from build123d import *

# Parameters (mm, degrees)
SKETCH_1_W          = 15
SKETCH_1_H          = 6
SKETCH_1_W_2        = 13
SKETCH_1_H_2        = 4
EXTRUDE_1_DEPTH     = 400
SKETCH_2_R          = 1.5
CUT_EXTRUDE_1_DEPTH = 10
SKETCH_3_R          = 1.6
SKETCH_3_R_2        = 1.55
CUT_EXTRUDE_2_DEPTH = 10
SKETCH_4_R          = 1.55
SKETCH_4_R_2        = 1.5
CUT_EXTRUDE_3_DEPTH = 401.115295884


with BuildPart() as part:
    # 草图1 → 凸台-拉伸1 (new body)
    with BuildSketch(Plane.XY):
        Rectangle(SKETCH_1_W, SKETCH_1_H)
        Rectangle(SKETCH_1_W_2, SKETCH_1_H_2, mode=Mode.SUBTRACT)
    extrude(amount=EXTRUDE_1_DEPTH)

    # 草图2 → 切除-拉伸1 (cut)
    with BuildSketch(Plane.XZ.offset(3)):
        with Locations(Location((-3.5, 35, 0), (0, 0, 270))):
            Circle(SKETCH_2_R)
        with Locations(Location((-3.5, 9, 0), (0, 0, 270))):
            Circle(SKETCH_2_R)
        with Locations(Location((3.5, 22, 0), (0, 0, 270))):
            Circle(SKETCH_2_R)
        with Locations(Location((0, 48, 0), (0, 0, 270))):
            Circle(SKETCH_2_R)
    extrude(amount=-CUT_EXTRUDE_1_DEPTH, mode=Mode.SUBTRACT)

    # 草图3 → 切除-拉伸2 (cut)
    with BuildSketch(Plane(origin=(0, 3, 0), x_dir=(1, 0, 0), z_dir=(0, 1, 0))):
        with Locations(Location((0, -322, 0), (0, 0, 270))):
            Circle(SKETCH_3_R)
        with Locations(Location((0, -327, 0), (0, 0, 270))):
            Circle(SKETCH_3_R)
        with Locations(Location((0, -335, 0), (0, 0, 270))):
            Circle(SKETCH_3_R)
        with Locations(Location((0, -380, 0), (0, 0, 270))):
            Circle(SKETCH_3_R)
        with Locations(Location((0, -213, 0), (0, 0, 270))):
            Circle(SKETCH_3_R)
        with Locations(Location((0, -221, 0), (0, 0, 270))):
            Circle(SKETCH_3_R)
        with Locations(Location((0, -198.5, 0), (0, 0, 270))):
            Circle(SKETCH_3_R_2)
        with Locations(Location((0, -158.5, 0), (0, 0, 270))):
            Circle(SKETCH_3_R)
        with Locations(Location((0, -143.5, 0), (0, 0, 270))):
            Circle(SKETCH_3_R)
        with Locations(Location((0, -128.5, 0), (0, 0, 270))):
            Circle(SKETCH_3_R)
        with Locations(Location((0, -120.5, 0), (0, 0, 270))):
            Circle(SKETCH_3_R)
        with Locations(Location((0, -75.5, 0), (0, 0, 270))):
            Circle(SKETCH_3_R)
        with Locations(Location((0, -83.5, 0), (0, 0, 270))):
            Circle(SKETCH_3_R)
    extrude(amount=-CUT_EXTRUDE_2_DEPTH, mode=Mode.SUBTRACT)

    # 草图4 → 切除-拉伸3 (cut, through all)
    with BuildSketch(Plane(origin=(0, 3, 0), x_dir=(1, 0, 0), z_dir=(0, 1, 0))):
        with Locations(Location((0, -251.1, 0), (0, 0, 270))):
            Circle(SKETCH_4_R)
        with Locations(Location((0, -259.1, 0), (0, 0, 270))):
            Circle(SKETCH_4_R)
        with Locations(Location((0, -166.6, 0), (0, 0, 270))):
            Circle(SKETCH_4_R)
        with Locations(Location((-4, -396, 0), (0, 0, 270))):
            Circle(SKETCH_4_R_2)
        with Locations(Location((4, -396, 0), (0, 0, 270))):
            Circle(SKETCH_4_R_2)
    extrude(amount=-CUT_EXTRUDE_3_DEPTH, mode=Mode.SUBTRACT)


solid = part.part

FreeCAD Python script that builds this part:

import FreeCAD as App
import Part
import Sketcher

V = App.Vector
Q = App.Units.Quantity

doc = App.newDocument("Part")
params = doc.addObject("Spreadsheet::Sheet", "Params")
for row, (alias, value) in enumerate([
    ("sketch1_width", "15 mm"),
    ("sketch1_width2", "13 mm"),
    ("sketch1_height", "6 mm"),
    ("sketch1_height2", "4 mm"),
    ("pad1_length", "400 mm"),
    ("sketch2_diameter", "3 mm"),
    ("pocket1_length", "10 mm"),
    ("sketch3_diameter", "3.2 mm"),
    ("sketch3_diameter2", "3.1 mm"),
    ("pocket2_length", "10 mm"),
    ("sketch4_diameter", "3 mm"),
    ("sketch4_diameter2", "3.1 mm"),
], start=1):
    params.set(f"A{row}", alias)
    params.set(f"B{row}", "=" + value)
    params.setAlias(f"B{row}", alias)

body = doc.addObject("PartDesign::Body", "Body")

sketch1 = body.newObject("Sketcher::SketchObject", "Sketch")
sketch1.AttachmentSupport = (doc.getObject("XY_Plane"), [""])
sketch1.MapMode = "FlatFace"
sketch1.addGeometry(Part.LineSegment(V(-7.5, 3, 0), V(-7.5, -3, 0)), False)
sketch1.addGeometry(Part.LineSegment(V(-7.5, -3, 0), V(7.5, -3, 0)), False)
sketch1.addGeometry(Part.LineSegment(V(7.5, -3, 0), V(7.5, 3, 0)), False)
sketch1.addGeometry(Part.LineSegment(V(7.5, 3, 0), V(-7.5, 3, 0)), False)
sketch1.addGeometry(Part.LineSegment(V(6.5, -2, 0), V(-6.5, -2, 0)), False)
sketch1.addGeometry(Part.LineSegment(V(-6.5, -2, 0), V(-6.5, 2, 0)), False)
sketch1.addGeometry(Part.LineSegment(V(-6.5, 2, 0), V(6.5, 2, 0)), False)
sketch1.addGeometry(Part.LineSegment(V(6.5, 2, 0), V(6.5, -2, 0)), False)
sketch1.addConstraint(Sketcher.Constraint("Coincident", 0, 2, 1, 1))
sketch1.addConstraint(Sketcher.Constraint("Coincident", 1, 2, 2, 1))
sketch1.addConstraint(Sketcher.Constraint("Coincident", 2, 2, 3, 1))
sketch1.addConstraint(Sketcher.Constraint("Coincident", 3, 2, 0, 1))
sketch1.addConstraint(Sketcher.Constraint("Coincident", 4, 2, 5, 1))
sketch1.addConstraint(Sketcher.Constraint("Coincident", 5, 2, 6, 1))
sketch1.addConstraint(Sketcher.Constraint("Coincident", 6, 2, 7, 1))
sketch1.addConstraint(Sketcher.Constraint("Coincident", 7, 2, 4, 1))
sketch1.addConstraint(Sketcher.Constraint("Vertical", 0))
sketch1.addConstraint(Sketcher.Constraint("Horizontal", 1))
sketch1.addConstraint(Sketcher.Constraint("Vertical", 2))
sketch1.addConstraint(Sketcher.Constraint("Horizontal", 3))
sketch1.addConstraint(Sketcher.Constraint("Horizontal", 4))
sketch1.addConstraint(Sketcher.Constraint("Vertical", 5))
sketch1.addConstraint(Sketcher.Constraint("Horizontal", 6))
sketch1.addConstraint(Sketcher.Constraint("Vertical", 7))
sketch1.addConstraint(Sketcher.Constraint("Symmetric", 0, 2, 2, 2, -1, 1))
sketch1.addConstraint(Sketcher.Constraint("Symmetric", 4, 2, 6, 2, -1, 1))
sketch1.addConstraint(Sketcher.Constraint("DistanceX", 1, 1, 1, 2, Q("15 mm")))
sketch1.addConstraint(Sketcher.Constraint("DistanceX", 4, 2, 4, 1, Q("13 mm")))
sketch1.addConstraint(Sketcher.Constraint("DistanceY", 0, 2, 0, 1, Q("6 mm")))
sketch1.addConstraint(Sketcher.Constraint("DistanceY", 5, 1, 5, 2, Q("4 mm")))
sketch1.setExpression("Constraints[18]", "Params.sketch1_width")
sketch1.setExpression("Constraints[19]", "Params.sketch1_width2")
sketch1.setExpression("Constraints[20]", "Params.sketch1_height")
sketch1.setExpression("Constraints[21]", "Params.sketch1_height2")
pad1 = body.newObject("PartDesign::Pad", "Pad")
pad1.Profile = sketch1
pad1.setExpression("Length", "Params.pad1_length")

sketch2 = body.newObject("Sketcher::SketchObject", "Sketch001")
sketch2.AttachmentSupport = (doc.getObject("XZ_Plane"), [""])
sketch2.MapMode = "FlatFace"
sketch2.AttachmentOffset = App.Placement(V(0, 0, 3), App.Rotation())
sketch2.addGeometry(Part.Circle(V(-3.5, 35, 0), V(0, 0, 1), 1.5), False)
sketch2.addGeometry(Part.Circle(V(-3.5, 9, 0), V(0, 0, 1), 1.5), False)
sketch2.addGeometry(Part.Circle(V(3.5, 22, 0), V(0, 0, 1), 1.5), False)
sketch2.addGeometry(Part.Circle(V(0, 48, 0), V(0, 0, 1), 1.5), False)
sketch2.addConstraint(Sketcher.Constraint("Equal", 0, 1))
sketch2.addConstraint(Sketcher.Constraint("Equal", 1, 2))
sketch2.addConstraint(Sketcher.Constraint("Equal", 2, 3))
sketch2.addConstraint(Sketcher.Constraint("PointOnObject", 3, 3, -2))
sketch2.addConstraint(Sketcher.Constraint("Vertical", 0, 3, 1, 3))
sketch2.addConstraint(Sketcher.Constraint("Diameter", 0, Q("3 mm")))
sketch2.addConstraint(Sketcher.Constraint("DistanceY", -1, 1, 0, 3, Q("35 mm")))
sketch2.addConstraint(Sketcher.Constraint("DistanceY", -1, 1, 1, 3, Q("9 mm")))
sketch2.addConstraint(Sketcher.Constraint("DistanceY", -1, 1, 2, 3, Q("22 mm")))
sketch2.addConstraint(Sketcher.Constraint("DistanceY", -1, 1, 3, 3, Q("48 mm")))
sketch2.addConstraint(Sketcher.Constraint("DistanceX", 0, 3, 2, 3, Q("7 mm")))
sketch2.addConstraint(Sketcher.Constraint("DistanceX", 0, 3, -1, 1, Q("3.5 mm")))
sketch2.setExpression("Constraints[5]", "Params.sketch2_diameter")
pocket1 = body.newObject("PartDesign::Pocket", "Pocket")
pocket1.Profile = sketch2
pocket1.setExpression("Length", "Params.pocket1_length")

sketch3 = body.newObject("Sketcher::SketchObject", "Sketch002")
sketch3.AttachmentSupport = (doc.getObject("XZ_Plane"), [""])
sketch3.MapMode = "FlatFace"
sketch3.AttachmentOffset = App.Placement(V(0, 0, -3), App.Rotation())
sketch3.addGeometry(Part.Circle(V(0, 322, 0), V(0, 0, 1), 1.6), False)
sketch3.addGeometry(Part.Circle(V(0, 327, 0), V(0, 0, 1), 1.6), False)
sketch3.addGeometry(Part.Circle(V(0, 335, 0), V(0, 0, 1), 1.6), False)
sketch3.addGeometry(Part.Circle(V(0, 380, 0), V(0, 0, 1), 1.6), False)
sketch3.addGeometry(Part.Circle(V(0, 213, 0), V(0, 0, 1), 1.6), False)
sketch3.addGeometry(Part.Circle(V(0, 221, 0), V(0, 0, 1), 1.6), False)
sketch3.addGeometry(Part.Circle(V(0, 198.5, 0), V(0, 0, 1), 1.55), False)
sketch3.addGeometry(Part.Circle(V(0, 158.5, 0), V(0, 0, 1), 1.6), False)
sketch3.addGeometry(Part.Circle(V(0, 143.5, 0), V(0, 0, 1), 1.6), False)
sketch3.addGeometry(Part.Circle(V(0, 128.5, 0), V(0, 0, 1), 1.6), False)
sketch3.addGeometry(Part.Circle(V(0, 120.5, 0), V(0, 0, 1), 1.6), False)
sketch3.addGeometry(Part.Circle(V(0, 75.5, 0), V(0, 0, 1), 1.6), False)
sketch3.addGeometry(Part.Circle(V(0, 83.5, 0), V(0, 0, 1), 1.6), False)
sketch3.addConstraint(Sketcher.Constraint("Equal", 0, 1))
sketch3.addConstraint(Sketcher.Constraint("Equal", 1, 2))
sketch3.addConstraint(Sketcher.Constraint("Equal", 2, 3))
sketch3.addConstraint(Sketcher.Constraint("Equal", 3, 4))
sketch3.addConstraint(Sketcher.Constraint("Equal", 4, 5))
sketch3.addConstraint(Sketcher.Constraint("Equal", 5, 7))
sketch3.addConstraint(Sketcher.Constraint("Equal", 7, 8))
sketch3.addConstraint(Sketcher.Constraint("Equal", 8, 9))
sketch3.addConstraint(Sketcher.Constraint("Equal", 9, 10))
sketch3.addConstraint(Sketcher.Constraint("Equal", 10, 11))
sketch3.addConstraint(Sketcher.Constraint("Equal", 11, 12))
sketch3.addConstraint(Sketcher.Constraint("PointOnObject", 0, 3, -2))
sketch3.addConstraint(Sketcher.Constraint("PointOnObject", 1, 3, -2))
sketch3.addConstraint(Sketcher.Constraint("PointOnObject", 2, 3, -2))
sketch3.addConstraint(Sketcher.Constraint("PointOnObject", 3, 3, -2))
sketch3.addConstraint(Sketcher.Constraint("PointOnObject", 4, 3, -2))
sketch3.addConstraint(Sketcher.Constraint("PointOnObject", 5, 3, -2))
sketch3.addConstraint(Sketcher.Constraint("PointOnObject", 6, 3, -2))
sketch3.addConstraint(Sketcher.Constraint("PointOnObject", 7, 3, -2))
sketch3.addConstraint(Sketcher.Constraint("PointOnObject", 8, 3, -2))
sketch3.addConstraint(Sketcher.Constraint("PointOnObject", 9, 3, -2))
sketch3.addConstraint(Sketcher.Constraint("PointOnObject", 10, 3, -2))
sketch3.addConstraint(Sketcher.Constraint("PointOnObject", 11, 3, -2))
sketch3.addConstraint(Sketcher.Constraint("PointOnObject", 12, 3, -2))
sketch3.addConstraint(Sketcher.Constraint("Diameter", 0, Q("3.2 mm")))
sketch3.addConstraint(Sketcher.Constraint("Diameter", 6, Q("3.1 mm")))
sketch3.addConstraint(Sketcher.Constraint("DistanceY", -1, 1, 0, 3, Q("322 mm")))
sketch3.addConstraint(Sketcher.Constraint("DistanceY", -1, 1, 1, 3, Q("327 mm")))
sketch3.addConstraint(Sketcher.Constraint("DistanceY", -1, 1, 2, 3, Q("335 mm")))
sketch3.addConstraint(Sketcher.Constraint("DistanceY", -1, 1, 3, 3, Q("380 mm")))
sketch3.addConstraint(Sketcher.Constraint("DistanceY", -1, 1, 4, 3, Q("213 mm")))
sketch3.addConstraint(Sketcher.Constraint("DistanceY", -1, 1, 5, 3, Q("221 mm")))
sketch3.addConstraint(Sketcher.Constraint("DistanceY", 7, 3, 6, 3, Q("40 mm")))
sketch3.addConstraint(Sketcher.Constraint("DistanceY", 8, 3, 7, 3, Q("15 mm")))
sketch3.addConstraint(Sketcher.Constraint("DistanceY", 9, 3, 8, 3, Q("15 mm")))
sketch3.addConstraint(Sketcher.Constraint("DistanceY", 10, 3, 9, 3, Q("8 mm")))
sketch3.addConstraint(Sketcher.Constraint("DistanceY", 11, 3, 10, 3, Q("45 mm")))
sketch3.addConstraint(Sketcher.Constraint("DistanceY", 11, 3, 12, 3, Q("8 mm")))
sketch3.addConstraint(Sketcher.Constraint("DistanceY", -1, 1, 6, 3, Q("198.5 mm")))
sketch3.setExpression("Constraints[24]", "Params.sketch3_diameter")
sketch3.setExpression("Constraints[25]", "Params.sketch3_diameter2")
pocket2 = body.newObject("PartDesign::Pocket", "Pocket001")
pocket2.Profile = sketch3
pocket2.setExpression("Length", "Params.pocket2_length")
pocket2.Reversed = True

sketch4 = body.newObject("Sketcher::SketchObject", "Sketch003")
sketch4.AttachmentSupport = (doc.getObject("XZ_Plane"), [""])
sketch4.MapMode = "FlatFace"
sketch4.AttachmentOffset = App.Placement(V(0, 0, -3), App.Rotation())
sketch4.addGeometry(Part.Circle(V(0, 251.1, 0), V(0, 0, 1), 1.55), False)
sketch4.addGeometry(Part.Circle(V(0, 259.1, 0), V(0, 0, 1), 1.55), False)
sketch4.addGeometry(Part.Circle(V(0, 166.6, 0), V(0, 0, 1), 1.55), False)
sketch4.addGeometry(Part.Circle(V(-4, 396, 0), V(0, 0, 1), 1.5), False)
sketch4.addGeometry(Part.Circle(V(4, 396, 0), V(0, 0, 1), 1.5), False)
sketch4.addConstraint(Sketcher.Constraint("Equal", 0, 1))
sketch4.addConstraint(Sketcher.Constraint("Equal", 1, 2))
sketch4.addConstraint(Sketcher.Constraint("Equal", 3, 4))
sketch4.addConstraint(Sketcher.Constraint("Symmetric", 3, 3, 4, 3, -2))
sketch4.addConstraint(Sketcher.Constraint("PointOnObject", 0, 3, -2))
sketch4.addConstraint(Sketcher.Constraint("PointOnObject", 1, 3, -2))
sketch4.addConstraint(Sketcher.Constraint("PointOnObject", 2, 3, -2))
sketch4.addConstraint(Sketcher.Constraint("Diameter", 3, Q("3 mm")))
sketch4.addConstraint(Sketcher.Constraint("Diameter", 0, Q("3.1 mm")))
sketch4.addConstraint(Sketcher.Constraint("DistanceX", 3, 3, -1, 1, Q("4 mm")))
sketch4.addConstraint(Sketcher.Constraint("DistanceY", -1, 1, 3, 3, Q("396 mm")))
sketch4.addConstraint(Sketcher.Constraint("DistanceY", 0, 3, 1, 3, Q("8 mm")))
sketch4.addConstraint(Sketcher.Constraint("DistanceY", -1, 1, 0, 3, Q("251.1 mm")))
sketch4.addConstraint(Sketcher.Constraint("DistanceY", -1, 1, 2, 3, Q("166.6 mm")))
sketch4.setExpression("Constraints[7]", "Params.sketch4_diameter")
sketch4.setExpression("Constraints[8]", "Params.sketch4_diameter2")
pocket3 = body.newObject("PartDesign::Pocket", "Pocket002")
pocket3.Profile = sketch4
pocket3.Type = "ThroughAll"
pocket3.Reversed = True

doc.recompute()
